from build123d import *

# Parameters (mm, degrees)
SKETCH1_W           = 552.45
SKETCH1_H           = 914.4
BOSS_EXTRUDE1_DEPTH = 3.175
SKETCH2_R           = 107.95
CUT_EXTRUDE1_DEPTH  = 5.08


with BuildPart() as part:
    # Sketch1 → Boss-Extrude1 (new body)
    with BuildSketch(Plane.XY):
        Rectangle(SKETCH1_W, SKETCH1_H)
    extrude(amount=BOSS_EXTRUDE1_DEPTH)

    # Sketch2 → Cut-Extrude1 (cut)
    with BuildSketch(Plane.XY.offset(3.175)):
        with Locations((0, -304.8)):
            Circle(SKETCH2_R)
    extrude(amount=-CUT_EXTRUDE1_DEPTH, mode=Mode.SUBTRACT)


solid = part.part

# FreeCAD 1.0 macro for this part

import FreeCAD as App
import Part
import Sketcher
Q = App.Units.Quantity


def add_polygon(sketch, points):
    """Adds a closed chain of lines whose ends are joined by coincident constraints."""
    first, n = sketch.GeometryCount, len(points)
    for a, b in zip(points, points[1:] + points[:1]):
        sketch.addGeometry(Part.LineSegment(App.Vector(*a, 0), App.Vector(*b, 0)), False)
    for i in range(n):
        sketch.addConstraint(Sketcher.Constraint("Coincident", first + i, 2, first + (i + 1) % n, 1))

doc = App.newDocument("Part")
body = doc.addObject("PartDesign::Body", "Body")

sketch1 = body.newObject("Sketcher::SketchObject", "Sketch")
sketch1.AttachmentSupport = (doc.getObject("XY_Plane"), [""])
sketch1.MapMode = "FlatFace"
add_polygon(sketch1, [(-276, 457), (-276, -457), (276, -457), (276, 457)])
sketch1.addConstraint([
    Sketcher.Constraint("Vertical", 0),
    Sketcher.Constraint("Horizontal", 1),
    Sketcher.Constraint("Vertical", 2),
    Sketcher.Constraint("Horizontal", 3),
    Sketcher.Constraint("Symmetric", 0, 2, 2, 2, -1, 1),
    Sketcher.Constraint("DistanceY", 0, 2, 0, 1, Q("36 in")),
    Sketcher.Constraint("DistanceX", 1, 1, 1, 2, Q("21.75 in")),
])
pad1 = body.newObject("PartDesign::Pad", "Pad")
pad1.Profile = sketch1
pad1.Length = Q("0.125 in")

sketch2 = body.newObject("Sketcher::SketchObject", "Sketch001")
sketch2.AttachmentSupport = (doc.getObject("XY_Plane"), [""])
sketch2.MapMode = "FlatFace"
sketch2.AttachmentOffset = App.Placement(App.Vector(0, 0, 0.125 * 25.4), App.Rotation())
sketch2.addGeometry(Part.Circle(App.Vector(0, -305, 0), App.Vector(0, 0, 1), 108), False)
sketch2.addConstraint([
    Sketcher.Constraint("PointOnObject", 0, 3, -2),
    Sketcher.Constraint("Diameter", 0, Q("8.5 in")),
    Sketcher.Constraint("DistanceY", 0, 3, -1, 1, Q("12 in")),
])
pocket1 = body.newObject("PartDesign::Pocket", "Pocket")
pocket1.Profile = sketch2
pocket1.Length = Q("0.2 in")

doc.recompute()
